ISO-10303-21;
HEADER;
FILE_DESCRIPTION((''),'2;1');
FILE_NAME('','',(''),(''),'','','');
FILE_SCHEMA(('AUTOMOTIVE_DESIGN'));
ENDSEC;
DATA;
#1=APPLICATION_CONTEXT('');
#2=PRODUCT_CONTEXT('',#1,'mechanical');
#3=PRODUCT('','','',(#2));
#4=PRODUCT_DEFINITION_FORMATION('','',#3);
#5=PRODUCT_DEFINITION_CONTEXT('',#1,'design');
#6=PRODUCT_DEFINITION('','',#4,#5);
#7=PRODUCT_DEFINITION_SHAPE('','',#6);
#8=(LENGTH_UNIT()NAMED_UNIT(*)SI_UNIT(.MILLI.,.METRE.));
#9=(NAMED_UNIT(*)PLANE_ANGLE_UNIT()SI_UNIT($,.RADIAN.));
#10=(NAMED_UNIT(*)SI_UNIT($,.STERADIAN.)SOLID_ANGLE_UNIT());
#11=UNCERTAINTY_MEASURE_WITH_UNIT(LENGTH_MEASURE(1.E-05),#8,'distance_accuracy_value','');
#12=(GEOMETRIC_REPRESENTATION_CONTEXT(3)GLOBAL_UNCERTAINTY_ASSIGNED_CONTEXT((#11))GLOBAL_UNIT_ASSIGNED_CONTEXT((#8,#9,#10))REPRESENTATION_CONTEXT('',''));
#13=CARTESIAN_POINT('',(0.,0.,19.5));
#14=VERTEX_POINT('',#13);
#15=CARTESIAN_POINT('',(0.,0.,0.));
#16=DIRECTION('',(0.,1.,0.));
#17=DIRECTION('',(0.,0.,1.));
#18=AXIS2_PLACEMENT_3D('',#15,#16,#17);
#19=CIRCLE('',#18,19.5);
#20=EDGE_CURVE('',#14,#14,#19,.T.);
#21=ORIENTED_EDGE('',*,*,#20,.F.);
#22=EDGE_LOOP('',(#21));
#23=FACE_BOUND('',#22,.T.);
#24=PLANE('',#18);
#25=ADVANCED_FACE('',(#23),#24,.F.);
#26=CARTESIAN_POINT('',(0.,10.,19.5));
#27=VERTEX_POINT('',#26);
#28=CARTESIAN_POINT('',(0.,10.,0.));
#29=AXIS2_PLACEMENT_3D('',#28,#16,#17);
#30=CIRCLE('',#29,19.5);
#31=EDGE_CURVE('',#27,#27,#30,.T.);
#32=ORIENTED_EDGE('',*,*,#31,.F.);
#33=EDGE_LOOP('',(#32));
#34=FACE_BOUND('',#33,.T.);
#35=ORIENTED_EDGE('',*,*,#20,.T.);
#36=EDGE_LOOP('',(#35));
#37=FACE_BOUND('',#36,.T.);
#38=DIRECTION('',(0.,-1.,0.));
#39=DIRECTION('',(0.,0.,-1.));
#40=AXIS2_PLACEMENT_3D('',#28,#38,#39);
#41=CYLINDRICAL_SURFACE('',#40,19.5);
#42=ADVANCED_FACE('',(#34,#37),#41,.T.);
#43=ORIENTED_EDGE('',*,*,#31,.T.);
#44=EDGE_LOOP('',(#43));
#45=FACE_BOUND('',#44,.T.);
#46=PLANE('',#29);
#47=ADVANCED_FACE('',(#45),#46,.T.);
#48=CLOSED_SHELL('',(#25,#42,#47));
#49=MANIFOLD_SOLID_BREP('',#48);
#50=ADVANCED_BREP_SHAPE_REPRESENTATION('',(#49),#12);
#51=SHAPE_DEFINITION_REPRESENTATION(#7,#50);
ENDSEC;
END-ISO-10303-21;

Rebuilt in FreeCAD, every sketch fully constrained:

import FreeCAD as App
import Part
import Sketcher

doc = App.newDocument("Part")
body = doc.addObject("PartDesign::Body", "Body")

# Sketch on XZ plane
sketch1 = body.newObject("Sketcher::SketchObject", "Sketch")
sketch1.AttachmentSupport = (doc.getObject("XZ_Plane"), [""])
sketch1.MapMode = "FlatFace"
sketch1.addGeometry(Part.Circle(App.Vector(0, 0, 0), App.Vector(0, 0, 1), 20), False)
sketch1.addConstraint(Sketcher.Constraint("Coincident", 0, 3, -1, 1))
sketch1.addConstraint(Sketcher.Constraint("Diameter", 0, 39.0))
pad1 = body.newObject("PartDesign::Pad", "Pad")
pad1.Profile = sketch1
pad1.Length = 10
pad1.Reversed = True

doc.recompute()
